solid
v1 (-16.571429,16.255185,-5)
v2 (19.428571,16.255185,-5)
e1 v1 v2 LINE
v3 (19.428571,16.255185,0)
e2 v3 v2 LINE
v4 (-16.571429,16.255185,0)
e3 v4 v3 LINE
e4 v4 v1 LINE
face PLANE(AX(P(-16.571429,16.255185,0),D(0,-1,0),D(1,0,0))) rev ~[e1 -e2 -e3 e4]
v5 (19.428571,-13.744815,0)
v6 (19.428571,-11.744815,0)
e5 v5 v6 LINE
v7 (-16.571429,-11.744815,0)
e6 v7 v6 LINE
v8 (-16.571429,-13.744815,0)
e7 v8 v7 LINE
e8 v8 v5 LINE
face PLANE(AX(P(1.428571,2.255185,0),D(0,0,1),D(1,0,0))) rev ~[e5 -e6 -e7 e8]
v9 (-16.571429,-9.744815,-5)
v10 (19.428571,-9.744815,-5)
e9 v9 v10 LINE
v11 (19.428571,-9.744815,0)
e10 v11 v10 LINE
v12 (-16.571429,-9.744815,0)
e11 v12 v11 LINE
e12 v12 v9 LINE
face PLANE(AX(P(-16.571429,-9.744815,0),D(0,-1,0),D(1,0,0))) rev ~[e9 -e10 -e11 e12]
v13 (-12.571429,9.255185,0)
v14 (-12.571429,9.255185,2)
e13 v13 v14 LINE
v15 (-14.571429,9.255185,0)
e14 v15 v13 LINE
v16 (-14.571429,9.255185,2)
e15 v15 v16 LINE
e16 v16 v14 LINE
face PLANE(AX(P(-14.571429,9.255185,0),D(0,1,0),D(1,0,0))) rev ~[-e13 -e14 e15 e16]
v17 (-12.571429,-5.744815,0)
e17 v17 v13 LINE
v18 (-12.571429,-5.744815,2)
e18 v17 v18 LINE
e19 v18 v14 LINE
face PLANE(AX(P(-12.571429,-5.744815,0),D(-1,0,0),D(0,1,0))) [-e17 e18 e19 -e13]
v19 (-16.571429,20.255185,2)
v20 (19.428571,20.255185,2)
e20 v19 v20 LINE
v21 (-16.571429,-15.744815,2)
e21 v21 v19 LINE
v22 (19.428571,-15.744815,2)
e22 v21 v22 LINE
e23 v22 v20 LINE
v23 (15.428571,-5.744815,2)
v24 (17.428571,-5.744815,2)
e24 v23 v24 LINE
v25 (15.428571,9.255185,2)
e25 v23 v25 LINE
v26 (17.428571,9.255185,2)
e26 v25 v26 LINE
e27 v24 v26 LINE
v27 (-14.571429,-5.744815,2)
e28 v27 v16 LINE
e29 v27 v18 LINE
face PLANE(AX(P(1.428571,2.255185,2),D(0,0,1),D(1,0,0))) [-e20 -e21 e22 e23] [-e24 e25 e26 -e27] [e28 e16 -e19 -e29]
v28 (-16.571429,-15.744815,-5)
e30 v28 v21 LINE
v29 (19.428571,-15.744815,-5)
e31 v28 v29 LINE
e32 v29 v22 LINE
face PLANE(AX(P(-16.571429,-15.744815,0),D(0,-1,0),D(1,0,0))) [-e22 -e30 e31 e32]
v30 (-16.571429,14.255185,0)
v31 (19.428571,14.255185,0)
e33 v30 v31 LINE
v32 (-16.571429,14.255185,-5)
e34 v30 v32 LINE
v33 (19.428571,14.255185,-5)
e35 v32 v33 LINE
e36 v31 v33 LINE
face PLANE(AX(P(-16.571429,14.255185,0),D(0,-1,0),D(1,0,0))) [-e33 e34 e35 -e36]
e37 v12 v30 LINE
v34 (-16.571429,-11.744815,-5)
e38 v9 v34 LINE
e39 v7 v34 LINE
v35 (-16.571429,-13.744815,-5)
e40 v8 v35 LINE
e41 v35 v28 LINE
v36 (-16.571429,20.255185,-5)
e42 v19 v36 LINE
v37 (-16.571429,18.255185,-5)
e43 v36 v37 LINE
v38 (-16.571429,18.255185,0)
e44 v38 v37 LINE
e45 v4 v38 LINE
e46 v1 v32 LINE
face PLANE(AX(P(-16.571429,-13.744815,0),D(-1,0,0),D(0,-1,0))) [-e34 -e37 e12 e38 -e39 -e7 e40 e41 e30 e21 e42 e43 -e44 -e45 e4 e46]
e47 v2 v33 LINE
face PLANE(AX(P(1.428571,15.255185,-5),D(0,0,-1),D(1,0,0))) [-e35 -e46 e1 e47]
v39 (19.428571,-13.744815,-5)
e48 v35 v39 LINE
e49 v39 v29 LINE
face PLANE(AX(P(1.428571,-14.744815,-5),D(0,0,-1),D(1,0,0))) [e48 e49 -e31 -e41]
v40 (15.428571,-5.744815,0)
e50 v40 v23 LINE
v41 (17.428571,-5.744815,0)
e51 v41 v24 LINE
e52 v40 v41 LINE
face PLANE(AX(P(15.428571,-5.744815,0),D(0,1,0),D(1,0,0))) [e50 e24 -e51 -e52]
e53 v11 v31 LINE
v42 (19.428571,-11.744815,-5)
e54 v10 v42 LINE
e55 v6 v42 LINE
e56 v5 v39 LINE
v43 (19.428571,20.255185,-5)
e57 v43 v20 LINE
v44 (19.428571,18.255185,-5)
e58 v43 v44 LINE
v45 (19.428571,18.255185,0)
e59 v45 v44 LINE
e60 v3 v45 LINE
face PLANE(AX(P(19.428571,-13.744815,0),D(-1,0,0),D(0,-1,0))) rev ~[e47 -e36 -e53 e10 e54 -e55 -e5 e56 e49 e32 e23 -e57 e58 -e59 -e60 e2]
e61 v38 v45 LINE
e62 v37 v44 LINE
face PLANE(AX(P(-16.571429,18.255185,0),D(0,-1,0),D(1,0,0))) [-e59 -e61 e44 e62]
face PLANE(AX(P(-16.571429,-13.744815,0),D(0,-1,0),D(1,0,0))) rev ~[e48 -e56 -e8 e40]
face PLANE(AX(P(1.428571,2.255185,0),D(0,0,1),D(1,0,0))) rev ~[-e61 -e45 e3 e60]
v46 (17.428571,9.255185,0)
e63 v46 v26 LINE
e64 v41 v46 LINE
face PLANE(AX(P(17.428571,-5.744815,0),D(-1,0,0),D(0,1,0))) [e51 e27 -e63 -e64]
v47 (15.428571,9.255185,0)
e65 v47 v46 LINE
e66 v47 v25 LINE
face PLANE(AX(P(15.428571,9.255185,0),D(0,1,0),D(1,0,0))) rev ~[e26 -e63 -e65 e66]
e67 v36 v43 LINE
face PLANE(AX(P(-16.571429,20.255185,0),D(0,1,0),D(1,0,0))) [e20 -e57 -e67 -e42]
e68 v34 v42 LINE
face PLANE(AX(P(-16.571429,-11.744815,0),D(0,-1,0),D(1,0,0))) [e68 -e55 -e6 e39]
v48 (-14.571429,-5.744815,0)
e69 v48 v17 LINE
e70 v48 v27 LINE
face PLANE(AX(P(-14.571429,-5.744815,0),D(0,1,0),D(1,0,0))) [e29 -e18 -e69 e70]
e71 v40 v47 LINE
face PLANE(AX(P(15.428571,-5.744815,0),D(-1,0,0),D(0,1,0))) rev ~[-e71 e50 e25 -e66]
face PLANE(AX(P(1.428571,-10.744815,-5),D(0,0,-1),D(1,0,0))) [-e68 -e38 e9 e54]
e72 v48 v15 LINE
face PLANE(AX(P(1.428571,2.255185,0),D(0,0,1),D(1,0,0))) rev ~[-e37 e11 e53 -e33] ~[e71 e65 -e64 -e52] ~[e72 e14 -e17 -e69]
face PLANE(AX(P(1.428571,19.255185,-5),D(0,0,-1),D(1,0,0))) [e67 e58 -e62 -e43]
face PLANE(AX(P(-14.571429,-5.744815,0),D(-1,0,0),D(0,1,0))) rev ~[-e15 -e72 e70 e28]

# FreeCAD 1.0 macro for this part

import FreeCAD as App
import Part
import Sketcher

V = App.Vector
Q = App.Units.Quantity

doc = App.newDocument("Part")
params = doc.addObject("Spreadsheet::Sheet", "Params")
for row, (alias, value) in enumerate([
    ("sketch1_width", "36 mm"),
    ("sketch1_width2", "2 mm"),
    ("sketch1_height", "15 mm"),
    ("pad1_length", "2 mm"),
    ("sketch2_width", "36 mm"),
    ("sketch2_height", "2 mm"),
    ("pad2_length", "5 mm"),
], start=1):
    params.set(f"A{row}", alias)
    params.set(f"B{row}", "=" + value)
    params.setAlias(f"B{row}", alias)

body = doc.addObject("PartDesign::Body", "Body")

# Sketch on XY plane
sketch1 = body.newObject("Sketcher::SketchObject", "Sketch")
sketch1.AttachmentSupport = (doc.getObject("XY_Plane"), [""])
sketch1.MapMode = "FlatFace"
sketch1.addGeometry([
    Part.LineSegment(V(-16.571429, 20.255185, 0), V(-16.571429, -15.744815, 0)),  # 0
    Part.LineSegment(V(-16.571429, -15.744815, 0), V(19.428571, -15.744815, 0)),  # 1
    Part.LineSegment(V(19.428571, -15.744815, 0), V(19.428571, 20.255185, 0)),  # 2
    Part.LineSegment(V(19.428571, 20.255185, 0), V(-16.571429, 20.255185, 0)),  # 3
    Part.LineSegment(V(-12.571429, -5.744815, 0), V(-14.571429, -5.744815, 0)),  # 4
    Part.LineSegment(V(-14.571429, -5.744815, 0), V(-14.571429, 9.255185, 0)),  # 5
    Part.LineSegment(V(-14.571429, 9.255185, 0), V(-12.571429, 9.255185, 0)),  # 6
    Part.LineSegment(V(-12.571429, 9.255185, 0), V(-12.571429, -5.744815, 0)),  # 7
    Part.LineSegment(V(17.428571, -5.744815, 0), V(15.428571, -5.744815, 0)),  # 8
    Part.LineSegment(V(15.428571, -5.744815, 0), V(15.428571, 9.255185, 0)),  # 9
    Part.LineSegment(V(15.428571, 9.255185, 0), V(17.428571, 9.255185, 0)),  # 10
    Part.LineSegment(V(17.428571, 9.255185, 0), V(17.428571, -5.744815, 0)),  # 11
], False)
sketch1.addConstraint([
    Sketcher.Constraint("Coincident", 0, 2, 1, 1),
    Sketcher.Constraint("Coincident", 1, 2, 2, 1),
    Sketcher.Constraint("Coincident", 2, 2, 3, 1),
    Sketcher.Constraint("Coincident", 3, 2, 0, 1),
    Sketcher.Constraint("Coincident", 4, 2, 5, 1),
    Sketcher.Constraint("Coincident", 5, 2, 6, 1),
    Sketcher.Constraint("Coincident", 6, 2, 7, 1),
    Sketcher.Constraint("Coincident", 7, 2, 4, 1),
    Sketcher.Constraint("Coincident", 8, 2, 9, 1),
    Sketcher.Constraint("Coincident", 9, 2, 10, 1),
    Sketcher.Constraint("Coincident", 10, 2, 11, 1),
    Sketcher.Constraint("Coincident", 11, 2, 8, 1),
    Sketcher.Constraint("Vertical", 0),
    Sketcher.Constraint("Horizontal", 1),
    Sketcher.Constraint("Vertical", 2),
    Sketcher.Constraint("Horizontal", 3),
    Sketcher.Constraint("Horizontal", 4),
    Sketcher.Constraint("Vertical", 5),
    Sketcher.Constraint("Horizontal", 6),
    Sketcher.Constraint("Vertical", 7),
    Sketcher.Constraint("Horizontal", 8),
    Sketcher.Constraint("Vertical", 9),
    Sketcher.Constraint("Horizontal", 10),
    Sketcher.Constraint("Vertical", 11),
    Sketcher.Constraint("Horizontal", 7, 2, 8, 2),
    Sketcher.Constraint("Horizontal", 6, 2, 9, 2),
    Sketcher.Constraint("Equal", 6, 8),
    Sketcher.Constraint("Equal", 3, 0),
    Sketcher.Constraint("DistanceX", 1, 1, 1, 2, Q("36 mm")),
    Sketcher.Constraint("DistanceX", 4, 2, 4, 1, Q("2 mm")),
    Sketcher.Constraint("DistanceY", 5, 1, 5, 2, Q("15 mm")),
    Sketcher.Constraint("DistanceX", 0, 2, 4, 2, Q("2 mm")),
    Sketcher.Constraint("DistanceY", 0, 2, 4, 2, Q("10 mm")),
    Sketcher.Constraint("DistanceX", 8, 2, 1, 2, Q("4 mm")),
    Sketcher.Constraint("DistanceX", 0, 2, -1, 1, Q("16.571429 mm")),
    Sketcher.Constraint("DistanceY", 0, 2, -1, 1, Q("15.744815 mm")),
])
sketch1.setExpression("Constraints[28]", "Params.sketch1_width")
sketch1.setExpression("Constraints[29]", "Params.sketch1_width2")
sketch1.setExpression("Constraints[30]", "Params.sketch1_height")
pad1 = body.newObject("PartDesign::Pad", "Pad")
pad1.Profile = sketch1
pad1.setExpression("Length", "Params.pad1_length")

# Sketch on XY plane
sketch2 = body.newObject("Sketcher::SketchObject", "Sketch001")
sketch2.AttachmentSupport = (doc.getObject("XY_Plane"), [""])
sketch2.MapMode = "FlatFace"
sketch2.addGeometry([
    Part.LineSegment(V(-16.571429, -15.744815, 0), V(-16.571429, -13.744815, 0)),  # 0
    Part.LineSegment(V(-16.571429, -13.744815, 0), V(19.428571, -13.744815, 0)),  # 1
    Part.LineSegment(V(19.428571, -13.744815, 0), V(19.428571, -15.744815, 0)),  # 2
    Part.LineSegment(V(19.428571, -15.744815, 0), V(-16.571429, -15.744815, 0)),  # 3
    Part.LineSegment(V(-16.571429, -11.744815, 0), V(-16.571429, -9.744815, 0)),  # 4
    Part.LineSegment(V(-16.571429, -9.744815, 0), V(19.428571, -9.744815, 0)),  # 5
    Part.LineSegment(V(19.428571, -9.744815, 0), V(19.428571, -11.744815, 0)),  # 6
    Part.LineSegment(V(19.428571, -11.744815, 0), V(-16.571429, -11.744815, 0)),  # 7
    Part.LineSegment(V(-16.571429, 18.255185, 0), V(-16.571429, 20.255185, 0)),  # 8
    Part.LineSegment(V(-16.571429, 20.255185, 0), V(19.428571, 20.255185, 0)),  # 9
    Part.LineSegment(V(19.428571, 20.255185, 0), V(19.428571, 18.255185, 0)),  # 10
    Part.LineSegment(V(19.428571, 18.255185, 0), V(-16.571429, 18.255185, 0)),  # 11
    Part.LineSegment(V(-16.571429, 14.255185, 0), V(-16.571429, 16.255185, 0)),  # 12
    Part.LineSegment(V(-16.571429, 16.255185, 0), V(19.428571, 16.255185, 0)),  # 13
    Part.LineSegment(V(19.428571, 16.255185, 0), V(19.428571, 14.255185, 0)),  # 14
    Part.LineSegment(V(19.428571, 14.255185, 0), V(-16.571429, 14.255185, 0)),  # 15
], False)
sketch2.addConstraint([
    Sketcher.Constraint("Coincident", 0, 2, 1, 1),
    Sketcher.Constraint("Coincident", 1, 2, 2, 1),
    Sketcher.Constraint("Coincident", 2, 2, 3, 1),
    Sketcher.Constraint("Coincident", 3, 2, 0, 1),
    Sketcher.Constraint("Coincident", 4, 2, 5, 1),
    Sketcher.Constraint("Coincident", 5, 2, 6, 1),
    Sketcher.Constraint("Coincident", 6, 2, 7, 1),
    Sketcher.Constraint("Coincident", 7, 2, 4, 1),
    Sketcher.Constraint("Coincident", 8, 2, 9, 1),
    Sketcher.Constraint("Coincident", 9, 2, 10, 1),
    Sketcher.Constraint("Coincident", 10, 2, 11, 1),
    Sketcher.Constraint("Coincident", 11, 2, 8, 1),
    Sketcher.Constraint("Coincident", 12, 2, 13, 1),
    Sketcher.Constraint("Coincident", 13, 2, 14, 1),
    Sketcher.Constraint("Coincident", 14, 2, 15, 1),
    Sketcher.Constraint("Coincident", 15, 2, 12, 1),
    Sketcher.Constraint("Vertical", 0),
    Sketcher.Constraint("Horizontal", 1),
    Sketcher.Constraint("Vertical", 2),
    Sketcher.Constraint("Horizontal", 3),
    Sketcher.Constraint("Vertical", 4),
    Sketcher.Constraint("Horizontal", 5),
    Sketcher.Constraint("Vertical", 6),
    Sketcher.Constraint("Horizontal", 7),
    Sketcher.Constraint("Vertical", 8),
    Sketcher.Constraint("Horizontal", 9),
    Sketcher.Constraint("Vertical", 10),
    Sketcher.Constraint("Horizontal", 11),
    Sketcher.Constraint("Vertical", 12),
    Sketcher.Constraint("Horizontal", 13),
    Sketcher.Constraint("Vertical", 14),
    Sketcher.Constraint("Horizontal", 15),
    Sketcher.Constraint("Vertical", 3, 2, 4, 2),
    Sketcher.Constraint("Vertical", 2, 2, 5, 2),
    Sketcher.Constraint("Vertical", 7, 2, 8, 2),
    Sketcher.Constraint("Vertical", 6, 2, 9, 2),
    Sketcher.Constraint("Vertical", 11, 2, 12, 2),
    Sketcher.Constraint("Vertical", 10, 2, 13, 2),
    Sketcher.Constraint("Equal", 2, 4),
    Sketcher.Constraint("Equal", 6, 8),
    Sketcher.Constraint("Equal", 10, 12),
    Sketcher.Constraint("DistanceX", 1, 1, 1, 2, Q("36 mm")),
    Sketcher.Constraint("DistanceY", 0, 1, 0, 2, Q("2 mm")),
    Sketcher.Constraint("DistanceY", 0, 2, 4, 2, Q("4 mm")),
    Sketcher.Constraint("DistanceY", 4, 2, 8, 2, Q("30 mm")),
    Sketcher.Constraint("DistanceY", 12, 2, 11, 2, Q("2 mm")),
    Sketcher.Constraint("DistanceX", 0, 2, -1, 1, Q("16.571429 mm")),
    Sketcher.Constraint("DistanceY", 0, 2, -1, 1, Q("13.744815 mm")),
])
sketch2.setExpression("Constraints[41]", "Params.sketch2_width")
sketch2.setExpression("Constraints[42]", "Params.sketch2_height")
pad2 = body.newObject("PartDesign::Pad", "Pad001")
pad2.Profile = sketch2
pad2.setExpression("Length", "Params.pad2_length")
pad2.Reversed = True

doc.recompute()
